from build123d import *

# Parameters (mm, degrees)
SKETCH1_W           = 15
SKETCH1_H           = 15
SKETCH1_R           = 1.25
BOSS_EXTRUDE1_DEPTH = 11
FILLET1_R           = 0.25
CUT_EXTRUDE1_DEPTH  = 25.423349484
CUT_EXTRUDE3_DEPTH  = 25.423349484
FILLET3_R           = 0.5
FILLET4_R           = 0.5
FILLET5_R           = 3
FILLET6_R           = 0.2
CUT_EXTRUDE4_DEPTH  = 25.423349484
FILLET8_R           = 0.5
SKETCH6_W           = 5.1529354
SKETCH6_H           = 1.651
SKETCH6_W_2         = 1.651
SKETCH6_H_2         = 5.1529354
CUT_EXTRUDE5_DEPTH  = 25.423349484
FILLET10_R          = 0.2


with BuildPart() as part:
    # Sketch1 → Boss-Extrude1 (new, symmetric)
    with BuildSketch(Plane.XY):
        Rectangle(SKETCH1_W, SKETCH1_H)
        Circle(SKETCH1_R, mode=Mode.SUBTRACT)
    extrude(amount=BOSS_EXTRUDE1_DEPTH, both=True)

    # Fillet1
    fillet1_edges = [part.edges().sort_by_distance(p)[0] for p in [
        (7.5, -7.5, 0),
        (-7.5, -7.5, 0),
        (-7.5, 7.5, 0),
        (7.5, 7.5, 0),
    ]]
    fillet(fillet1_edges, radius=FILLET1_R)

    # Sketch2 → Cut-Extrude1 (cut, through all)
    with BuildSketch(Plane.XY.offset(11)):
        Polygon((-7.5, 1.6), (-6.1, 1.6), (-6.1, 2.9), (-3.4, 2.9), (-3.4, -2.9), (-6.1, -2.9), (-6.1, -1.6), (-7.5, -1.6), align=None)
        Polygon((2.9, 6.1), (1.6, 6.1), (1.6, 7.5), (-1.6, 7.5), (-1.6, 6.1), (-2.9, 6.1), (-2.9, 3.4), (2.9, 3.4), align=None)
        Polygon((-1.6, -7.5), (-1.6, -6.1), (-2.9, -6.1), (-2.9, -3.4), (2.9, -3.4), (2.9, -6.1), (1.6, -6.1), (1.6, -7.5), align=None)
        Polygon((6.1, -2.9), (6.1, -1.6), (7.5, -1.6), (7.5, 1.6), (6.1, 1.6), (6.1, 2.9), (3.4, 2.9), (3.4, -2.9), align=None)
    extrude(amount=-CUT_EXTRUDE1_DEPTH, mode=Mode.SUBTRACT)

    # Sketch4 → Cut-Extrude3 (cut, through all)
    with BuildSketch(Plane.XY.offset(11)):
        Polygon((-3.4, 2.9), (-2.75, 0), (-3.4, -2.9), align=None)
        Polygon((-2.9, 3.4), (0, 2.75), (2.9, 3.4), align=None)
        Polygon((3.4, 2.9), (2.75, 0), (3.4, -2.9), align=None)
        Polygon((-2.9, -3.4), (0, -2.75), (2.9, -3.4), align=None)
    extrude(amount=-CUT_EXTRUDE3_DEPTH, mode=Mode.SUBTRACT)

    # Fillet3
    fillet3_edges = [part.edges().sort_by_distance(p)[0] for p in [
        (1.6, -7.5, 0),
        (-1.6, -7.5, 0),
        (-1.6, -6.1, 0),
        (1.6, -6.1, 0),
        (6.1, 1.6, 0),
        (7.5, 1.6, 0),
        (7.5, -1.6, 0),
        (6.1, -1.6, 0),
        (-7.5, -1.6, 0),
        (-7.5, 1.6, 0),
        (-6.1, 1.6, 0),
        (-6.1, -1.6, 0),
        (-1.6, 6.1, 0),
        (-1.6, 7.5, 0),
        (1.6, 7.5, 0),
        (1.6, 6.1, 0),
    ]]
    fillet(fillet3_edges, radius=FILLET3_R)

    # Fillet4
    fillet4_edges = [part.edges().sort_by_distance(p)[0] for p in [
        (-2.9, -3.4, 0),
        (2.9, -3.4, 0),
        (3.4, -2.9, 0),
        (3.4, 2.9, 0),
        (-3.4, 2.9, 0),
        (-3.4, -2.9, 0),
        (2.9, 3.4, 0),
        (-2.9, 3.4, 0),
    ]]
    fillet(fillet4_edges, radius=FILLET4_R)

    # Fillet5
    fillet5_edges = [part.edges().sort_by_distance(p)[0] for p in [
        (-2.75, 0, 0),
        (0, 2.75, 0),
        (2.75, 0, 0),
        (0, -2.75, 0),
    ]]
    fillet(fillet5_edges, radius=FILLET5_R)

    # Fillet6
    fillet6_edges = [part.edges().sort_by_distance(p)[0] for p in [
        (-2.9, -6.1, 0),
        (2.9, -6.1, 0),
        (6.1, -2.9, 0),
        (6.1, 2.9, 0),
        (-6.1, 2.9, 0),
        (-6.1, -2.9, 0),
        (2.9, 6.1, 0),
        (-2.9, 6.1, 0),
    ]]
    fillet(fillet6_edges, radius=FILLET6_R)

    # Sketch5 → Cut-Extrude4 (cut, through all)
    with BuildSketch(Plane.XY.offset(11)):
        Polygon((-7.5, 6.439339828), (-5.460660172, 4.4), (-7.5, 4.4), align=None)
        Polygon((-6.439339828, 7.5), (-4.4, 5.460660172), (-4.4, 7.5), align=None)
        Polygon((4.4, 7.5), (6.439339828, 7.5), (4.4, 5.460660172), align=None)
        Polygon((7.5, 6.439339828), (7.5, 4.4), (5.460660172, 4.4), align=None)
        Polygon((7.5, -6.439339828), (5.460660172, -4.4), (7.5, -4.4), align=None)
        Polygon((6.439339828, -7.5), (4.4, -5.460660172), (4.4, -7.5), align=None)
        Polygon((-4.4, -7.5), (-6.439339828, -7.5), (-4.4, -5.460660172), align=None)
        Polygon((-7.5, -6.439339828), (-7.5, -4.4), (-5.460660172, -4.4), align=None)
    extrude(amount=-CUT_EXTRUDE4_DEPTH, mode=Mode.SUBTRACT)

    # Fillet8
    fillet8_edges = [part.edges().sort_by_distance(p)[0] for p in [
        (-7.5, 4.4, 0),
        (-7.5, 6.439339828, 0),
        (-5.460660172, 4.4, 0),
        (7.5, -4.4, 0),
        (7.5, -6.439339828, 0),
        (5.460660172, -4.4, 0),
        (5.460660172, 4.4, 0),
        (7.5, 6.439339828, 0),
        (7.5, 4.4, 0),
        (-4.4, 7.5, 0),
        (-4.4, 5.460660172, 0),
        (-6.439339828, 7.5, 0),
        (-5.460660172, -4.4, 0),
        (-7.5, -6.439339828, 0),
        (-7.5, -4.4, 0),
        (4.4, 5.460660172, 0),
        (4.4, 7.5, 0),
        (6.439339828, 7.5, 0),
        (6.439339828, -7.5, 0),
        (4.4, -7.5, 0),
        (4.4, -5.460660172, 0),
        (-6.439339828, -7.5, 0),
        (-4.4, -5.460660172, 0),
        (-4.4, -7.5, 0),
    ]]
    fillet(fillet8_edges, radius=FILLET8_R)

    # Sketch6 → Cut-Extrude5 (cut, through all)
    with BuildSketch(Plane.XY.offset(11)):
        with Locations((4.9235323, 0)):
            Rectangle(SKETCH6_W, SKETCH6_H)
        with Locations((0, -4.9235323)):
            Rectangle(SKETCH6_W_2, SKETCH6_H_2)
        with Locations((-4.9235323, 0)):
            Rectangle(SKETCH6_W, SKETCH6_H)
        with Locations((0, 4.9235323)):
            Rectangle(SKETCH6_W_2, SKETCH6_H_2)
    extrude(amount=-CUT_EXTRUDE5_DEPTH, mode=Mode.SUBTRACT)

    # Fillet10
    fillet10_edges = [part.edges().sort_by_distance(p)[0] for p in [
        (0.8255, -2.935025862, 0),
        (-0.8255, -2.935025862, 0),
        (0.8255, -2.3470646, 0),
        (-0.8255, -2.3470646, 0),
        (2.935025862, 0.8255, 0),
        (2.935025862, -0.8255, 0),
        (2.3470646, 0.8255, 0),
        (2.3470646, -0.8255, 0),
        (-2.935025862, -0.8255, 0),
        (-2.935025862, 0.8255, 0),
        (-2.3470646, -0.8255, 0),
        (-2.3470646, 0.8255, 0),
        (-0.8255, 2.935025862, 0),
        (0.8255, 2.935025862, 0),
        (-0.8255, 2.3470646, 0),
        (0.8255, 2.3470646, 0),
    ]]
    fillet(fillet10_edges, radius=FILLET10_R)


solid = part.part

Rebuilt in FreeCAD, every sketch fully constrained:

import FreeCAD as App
import Part
import Sketcher
Q = App.Units.Quantity


def edges_at(feature, points):
    """Names of the edges that pass closest to the given points."""
    edges = feature.Shape.Edges
    near = lambda p: min(range(len(edges)), key=lambda i: edges[i].distToShape(Part.Vertex(*p))[0])
    return sorted({f"Edge{near(p) + 1}" for p in points})


def add_polygon(sketch, points):
    """Adds a closed chain of lines whose ends are joined by coincident constraints."""
    first, n = sketch.GeometryCount, len(points)
    for a, b in zip(points, points[1:] + points[:1]):
        sketch.addGeometry(Part.LineSegment(App.Vector(*a, 0), App.Vector(*b, 0)), False)
    for i in range(n):
        sketch.addConstraint(Sketcher.Constraint("Coincident", first + i, 2, first + (i + 1) % n, 1))

doc = App.newDocument("Part")
params = doc.addObject("Spreadsheet::Sheet", "Params")
for row, (alias, value) in enumerate([
    ("sketch1_diameter", "2.5 mm"),
    ("sketch1_width", "15 mm"),
    ("pad1_length", "22 mm"),
    ("fillet_radius", "0.25 mm"),
    ("sketch2_width", "1.4 mm"),
    ("sketch2_width2", "2.7 mm"),
    ("sketch2_width3", "1.3 mm"),
    ("sketch2_width4", "3.2 mm"),
    ("sketch3_width", "5.8 mm"),
    ("fillet2_radius", "0.5 mm"),
    ("fillet3_radius", "0.5 mm"),
    ("fillet4_radius", "3 mm"),
    ("fillet5_radius", "0.2 mm"),
    ("fillet6_radius", "0.5 mm"),
    ("fillet7_radius", "0.2 mm"),
], start=1):
    params.set(f"A{row}", alias)
    params.set(f"B{row}", "=" + value)
    params.setAlias(f"B{row}", alias)

body = doc.addObject("PartDesign::Body", "Body")

sketch1 = doc.addObject("Sketcher::SketchObject", "Sketch")
body.addObject(sketch1)
sketch1.AttachmentSupport = (doc.XY_Plane, [""])
sketch1.MapMode = "FlatFace"
add_polygon(sketch1, [(-7.5, 7.5), (-7.5, -7.5), (7.5, -7.5), (7.5, 7.5)])
sketch1.addGeometry(Part.Circle(App.Vector(0, 0, 0), App.Vector(0, 0, 1), 1.2), False)
sketch1.addConstraint(Sketcher.Constraint("Vertical", 0))
sketch1.addConstraint(Sketcher.Constraint("Horizontal", 1))
sketch1.addConstraint(Sketcher.Constraint("Vertical", 2))
sketch1.addConstraint(Sketcher.Constraint("Horizontal", 3))
sketch1.addConstraint(Sketcher.Constraint("Coincident", 4, 3, -1, 1))
sketch1.addConstraint(Sketcher.Constraint("Symmetric", 0, 2, 2, 2, -1, 1))
sketch1.addConstraint(Sketcher.Constraint("Equal", 3, 0))
sketch1.addConstraint(Sketcher.Constraint("Diameter", 4, Q("2.5 mm")))
sketch1.addConstraint(Sketcher.Constraint("DistanceX", 1, 1, 1, 2, Q("15 mm")))
sketch1.setExpression("Constraints[11]", "Params.sketch1_diameter")
sketch1.setExpression("Constraints[12]", "Params.sketch1_width")
pad1 = doc.addObject("PartDesign::Pad", "Pad")
body.addObject(pad1)
pad1.Profile = sketch1
pad1.setExpression("Length", "Params.pad1_length")
pad1.Midplane = True
doc.recompute()

fillet = doc.addObject("PartDesign::Fillet", "Fillet")
body.addObject(fillet)
fillet.Base = (pad1, edges_at(pad1, [
    (7.5, -7.5, 0),
    (-7.5, -7.5, 0),
    (-7.5, 7.5, 0),
    (7.5, 7.5, 0),
]))
fillet.setExpression("Radius", "Params.fillet_radius")

sketch2 = doc.addObject("Sketcher::SketchObject", "Sketch001")
body.addObject(sketch2)
sketch2.AttachmentSupport = (doc.XY_Plane, [""])
sketch2.MapMode = "FlatFace"
sketch2.AttachmentOffset = App.Placement(App.Vector(0, 0, 11), App.Rotation())
add_polygon(sketch2, [(-6.1, 1.6), (-7.5, 1.6), (-7.5, -1.6), (-6.1, -1.6), (-6.1, -2.9), (-3.4, -2.9), (-3.4, 2.9), (-6.1, 2.9)])
add_polygon(sketch2, [(2.9, 6.1), (1.6, 6.1), (1.6, 7.5), (-1.6, 7.5), (-1.6, 6.1), (-2.9, 6.1), (-2.9, 3.4), (2.9, 3.4)])
add_polygon(sketch2, [(-1.6, -6.1), (-1.6, -7.5), (1.6, -7.5), (1.6, -6.1), (2.9, -6.1), (2.9, -3.4), (-2.9, -3.4), (-2.9, -6.1)])
add_polygon(sketch2, [(6.1, -2.9), (6.1, -1.6), (7.5, -1.6), (7.5, 1.6), (6.1, 1.6), (6.1, 2.9), (3.4, 2.9), (3.4, -2.9)])
sketch2.addConstraint(Sketcher.Constraint("Horizontal", 0))
sketch2.addConstraint(Sketcher.Constraint("Vertical", 1))
sketch2.addConstraint(Sketcher.Constraint("Horizontal", 2))
sketch2.addConstraint(Sketcher.Constraint("Vertical", 3))
sketch2.addConstraint(Sketcher.Constraint("Horizontal", 4))
sketch2.addConstraint(Sketcher.Constraint("Vertical", 5))
sketch2.addConstraint(Sketcher.Constraint("Horizontal", 6))
sketch2.addConstraint(Sketcher.Constraint("Vertical", 7))
sketch2.addConstraint(Sketcher.Constraint("Horizontal", 8))
sketch2.addConstraint(Sketcher.Constraint("Vertical", 9))
sketch2.addConstraint(Sketcher.Constraint("Horizontal", 10))
sketch2.addConstraint(Sketcher.Constraint("Vertical", 11))
sketch2.addConstraint(Sketcher.Constraint("Horizontal", 12))
sketch2.addConstraint(Sketcher.Constraint("Vertical", 13))
sketch2.addConstraint(Sketcher.Constraint("Horizontal", 14))
sketch2.addConstraint(Sketcher.Constraint("Vertical", 15))
sketch2.addConstraint(Sketcher.Constraint("Vertical", 16))
sketch2.addConstraint(Sketcher.Constraint("Horizontal", 17))
sketch2.addConstraint(Sketcher.Constraint("Vertical", 18))
sketch2.addConstraint(Sketcher.Constraint("Horizontal", 19))
sketch2.addConstraint(Sketcher.Constraint("Vertical", 20))
sketch2.addConstraint(Sketcher.Constraint("Horizontal", 21))
sketch2.addConstraint(Sketcher.Constraint("Vertical", 22))
sketch2.addConstraint(Sketcher.Constraint("Horizontal", 23))
sketch2.addConstraint(Sketcher.Constraint("Vertical", 24))
sketch2.addConstraint(Sketcher.Constraint("Horizontal", 25))
sketch2.addConstraint(Sketcher.Constraint("Vertical", 26))
sketch2.addConstraint(Sketcher.Constraint("Horizontal", 27))
sketch2.addConstraint(Sketcher.Constraint("Vertical", 28))
sketch2.addConstraint(Sketcher.Constraint("Horizontal", 29))
sketch2.addConstraint(Sketcher.Constraint("Vertical", 30))
sketch2.addConstraint(Sketcher.Constraint("Horizontal", 31))
sketch2.addConstraint(Sketcher.Constraint("Symmetric", 9, 2, 16, 2, -1, 1))
sketch2.addConstraint(Sketcher.Constraint("Symmetric", 11, 2, 18, 2, -1, 1))
sketch2.addConstraint(Sketcher.Constraint("Symmetric", 13, 2, 20, 2, -1, 1))
sketch2.addConstraint(Sketcher.Constraint("Symmetric", 15, 2, 22, 2, -1, 1))
sketch2.addConstraint(Sketcher.Constraint("Symmetric", 7, 2, 24, 2, -1, 1))
sketch2.addConstraint(Sketcher.Constraint("Symmetric", 1, 2, 26, 2, -1, 1))
sketch2.addConstraint(Sketcher.Constraint("Symmetric", 3, 2, 28, 2, -1, 1))
sketch2.addConstraint(Sketcher.Constraint("Symmetric", 5, 2, 30, 2, -1, 1))
sketch2.addConstraint(Sketcher.Constraint("Symmetric", 8, 2, 11, 2, -2))
sketch2.addConstraint(Sketcher.Constraint("Symmetric", 2, 2, 24, 2, -2))
sketch2.addConstraint(Sketcher.Constraint("Horizontal", 6, 2, 28, 2))
sketch2.addConstraint(Sketcher.Constraint("Vertical", 15, 2, 19, 2))
sketch2.addConstraint(Sketcher.Constraint("Equal", 17, 1))
sketch2.addConstraint(Sketcher.Constraint("Equal", 23, 3))
sketch2.addConstraint(Sketcher.Constraint("Equal", 27, 9))
sketch2.addConstraint(Sketcher.Constraint("Equal", 31, 13))
sketch2.addConstraint(Sketcher.Constraint("DistanceX", 0, 2, 0, 1, Q("1.4 mm")))
sketch2.addConstraint(Sketcher.Constraint("DistanceX", 4, 1, 4, 2, Q("2.7 mm")))
sketch2.addConstraint(Sketcher.Constraint("DistanceX", 8, 2, 8, 1, Q("1.3 mm")))
sketch2.addConstraint(Sketcher.Constraint("DistanceX", 10, 2, 10, 1, Q("3.2 mm")))
sketch2.addConstraint(Sketcher.Constraint("DistanceX", 5, 2, 8, 2, Q("5 mm")))
sketch2.addConstraint(Sketcher.Constraint("DistanceY", 4, 2, 8, 2, Q("9 mm")))
sketch2.setExpression("Constraints[80]", "Params.sketch2_width")
sketch2.setExpression("Constraints[81]", "Params.sketch2_width2")
sketch2.setExpression("Constraints[82]", "Params.sketch2_width3")
sketch2.setExpression("Constraints[83]", "Params.sketch2_width4")
pocket1 = doc.addObject("PartDesign::Pocket", "Pocket")
body.addObject(pocket1)
pocket1.Profile = sketch2
pocket1.Type = "ThroughAll"

sketch3 = doc.addObject("Sketcher::SketchObject", "Sketch002")
body.addObject(sketch3)
sketch3.AttachmentSupport = (doc.XY_Plane, [""])
sketch3.MapMode = "FlatFace"
sketch3.AttachmentOffset = App.Placement(App.Vector(0, 0, 11), App.Rotation())
add_polygon(sketch3, [(-2.8, 0), (-3.4, 2.9), (-3.4, -2.9)])
add_polygon(sketch3, [(-2.9, 3.4), (0, 2.8), (2.9, 3.4)])
add_polygon(sketch3, [(3.4, 2.9), (2.8, 0), (3.4, -2.9)])
add_polygon(sketch3, [(0, -2.8), (-2.9, -3.4), (2.9, -3.4)])
sketch3.addConstraint(Sketcher.Constraint("Vertical", 1))
sketch3.addConstraint(Sketcher.Constraint("Horizontal", 5))
sketch3.addConstraint(Sketcher.Constraint("Vertical", 8))
sketch3.addConstraint(Sketcher.Constraint("Horizontal", 10))
sketch3.addConstraint(Sketcher.Constraint("Symmetric", 2, 2, 6, 2, -1, 1))
sketch3.addConstraint(Sketcher.Constraint("Symmetric", 0, 2, 7, 2, -1, 1))
sketch3.addConstraint(Sketcher.Constraint("Symmetric", 4, 2, 9, 2, -1, 1))
sketch3.addConstraint(Sketcher.Constraint("Symmetric", 3, 2, 11, 2, -1, 1))
sketch3.addConstraint(Sketcher.Constraint("PointOnObject", 2, 2, -1))
sketch3.addConstraint(Sketcher.Constraint("PointOnObject", 3, 2, -2))
sketch3.addConstraint(Sketcher.Constraint("Perpendicular", 2, 3))
sketch3.addConstraint(Sketcher.Constraint("Perpendicular", 0, 4))
sketch3.addConstraint(Sketcher.Constraint("Perpendicular", 3, 6))
sketch3.addConstraint(Sketcher.Constraint("Perpendicular", 6, 11))
sketch3.addConstraint(Sketcher.Constraint("Horizontal", 1, 2, 7, 2))
sketch3.addConstraint(Sketcher.Constraint("Equal", 10, 1))
sketch3.addConstraint(Sketcher.Constraint("DistanceX", 5, 2, 5, 1, Q("5.8 mm")))
sketch3.addConstraint(Sketcher.Constraint("DistanceX", 0, 2, -1, 1, Q("3.4 mm")))
sketch3.addConstraint(Sketcher.Constraint("DistanceY", -1, 1, 4, 2, Q("3.4 mm")))
sketch3.addConstraint(Sketcher.Constraint("DistanceX", 2, 2, 6, 2, Q("5.5 mm")))
sketch3.setExpression("Constraints[28]", "Params.sketch3_width")
pocket2 = doc.addObject("PartDesign::Pocket", "Pocket001")
body.addObject(pocket2)
pocket2.Profile = sketch3
pocket2.Type = "ThroughAll"
doc.recompute()

fillet2 = doc.addObject("PartDesign::Fillet", "Fillet001")
body.addObject(fillet2)
fillet2.Base = (pocket2, edges_at(pocket2, [
    (1.6, -7.5, 0),
    (-1.6, -7.5, 0),
    (-1.6, -6.1, 0),
    (1.6, -6.1, 0),
    (6.1, 1.6, 0),
    (7.5, 1.6, 0),
    (7.5, -1.6, 0),
    (6.1, -1.6, 0),
    (-7.5, -1.6, 0),
    (-7.5, 1.6, 0),
    (-6.1, 1.6, 0),
    (-6.1, -1.6, 0),
    (-1.6, 6.1, 0),
    (-1.6, 7.5, 0),
    (1.6, 7.5, 0),
    (1.6, 6.1, 0),
]))
fillet2.setExpression("Radius", "Params.fillet2_radius")
doc.recompute()

fillet3 = doc.addObject("PartDesign::Fillet", "Fillet002")
body.addObject(fillet3)
fillet3.Base = (fillet2, edges_at(fillet2, [
    (-2.9, -3.4, 0),
    (2.9, -3.4, 0),
    (3.4, -2.9, 0),
    (3.4, 2.9, 0),
    (-3.4, 2.9, 0),
    (-3.4, -2.9, 0),
    (2.9, 3.4, 0),
    (-2.9, 3.4, 0),
]))
fillet3.setExpression("Radius", "Params.fillet3_radius")
doc.recompute()

fillet4 = doc.addObject("PartDesign::Fillet", "Fillet003")
body.addObject(fillet4)
fillet4.Base = (fillet3, edges_at(fillet3, [
    (-2.75, 0, 0),
    (0, 2.75, 0),
    (2.75, 0, 0),
    (0, -2.75, 0),
]))
fillet4.setExpression("Radius", "Params.fillet4_radius")
doc.recompute()

fillet5 = doc.addObject("PartDesign::Fillet", "Fillet004")
body.addObject(fillet5)
fillet5.Base = (fillet4, edges_at(fillet4, [
    (-2.9, -6.1, 0),
    (2.9, -6.1, 0),
    (6.1, -2.9, 0),
    (6.1, 2.9, 0),
    (-6.1, 2.9, 0),
    (-6.1, -2.9, 0),
    (2.9, 6.1, 0),
    (-2.9, 6.1, 0),
]))
fillet5.setExpression("Radius", "Params.fillet5_radius")

sketch4 = doc.addObject("Sketcher::SketchObject", "Sketch003")
body.addObject(sketch4)
sketch4.AttachmentSupport = (doc.XY_Plane, [""])
sketch4.MapMode = "FlatFace"
sketch4.AttachmentOffset = App.Placement(App.Vector(0, 0, 11), App.Rotation())
add_polygon(sketch4, [(-5.5, 4.4), (-7.5, 6.4), (-7.5, 4.4)])
add_polygon(sketch4, [(-6.4, 7.5), (-4.4, 5.5), (-4.4, 7.5)])
add_polygon(sketch4, [(6.4, 7.5), (4.4, 7.5), (4.4, 5.5)])
add_polygon(sketch4, [(7.5, 4.4), (7.5, 6.4), (5.5, 4.4)])
add_polygon(sketch4, [(5.5, -4.4), (7.5, -6.4), (7.5, -4.4)])
add_polygon(sketch4, [(6.4, -7.5), (4.4, -5.5), (4.4, -7.5)])
add_polygon(sketch4, [(-6.4, -7.5), (-4.4, -7.5), (-4.4, -5.5)])
add_polygon(sketch4, [(-7.5, -4.4), (-7.5, -6.4), (-5.5, -4.4)])
sketch4.addConstraint(Sketcher.Constraint("Vertical", 1))
sketch4.addConstraint(Sketcher.Constraint("Horizontal", 2))
sketch4.addConstraint(Sketcher.Constraint("Vertical", 4))
sketch4.addConstraint(Sketcher.Constraint("Horizontal", 5))
sketch4.addConstraint(Sketcher.Constraint("Horizontal", 6))
sketch4.addConstraint(Sketcher.Constraint("Vertical", 7))
sketch4.addConstraint(Sketcher.Constraint("Vertical", 9))
sketch4.addConstraint(Sketcher.Constraint("Horizontal", 11))
sketch4.addConstraint(Sketcher.Constraint("Vertical", 13))
sketch4.addConstraint(Sketcher.Constraint("Horizontal", 14))
sketch4.addConstraint(Sketcher.Constraint("Vertical", 16))
sketch4.addConstraint(Sketcher.Constraint("Horizontal", 17))
sketch4.addConstraint(Sketcher.Constraint("Horizontal", 18))
sketch4.addConstraint(Sketcher.Constraint("Vertical", 19))
sketch4.addConstraint(Sketcher.Constraint("Vertical", 21))
sketch4.addConstraint(Sketcher.Constraint("Horizontal", 23))
sketch4.addConstraint(Sketcher.Constraint("Symmetric", 0, 2, 12, 2, -1, 1))
sketch4.addConstraint(Sketcher.Constraint("Symmetric", 2, 2, 14, 2, -1, 1))
sketch4.addConstraint(Sketcher.Constraint("Symmetric", 3, 2, 15, 2, -1, 1))
sketch4.addConstraint(Sketcher.Constraint("Symmetric", 5, 2, 17, 2, -1, 1))
sketch4.addConstraint(Sketcher.Constraint("Symmetric", 6, 2, 18, 2, -1, 1))
sketch4.addConstraint(Sketcher.Constraint("Symmetric", 9, 2, 21, 2, -1, 1))
sketch4.addConstraint(Sketcher.Constraint("Symmetric", 10, 2, 22, 2, -1, 1))
sketch4.addConstraint(Sketcher.Constraint("Symmetric", 4, 2, 6, 2, -2))
sketch4.addConstraint(Sketcher.Constraint("Symmetric", 0, 2, 9, 2, -2))
sketch4.addConstraint(Sketcher.Constraint("Symmetric", 2, 2, 10, 2, -2))
sketch4.addConstraint(Sketcher.Constraint("Parallel", 0, 3))
sketch4.addConstraint(Sketcher.Constraint("Perpendicular", 3, 8))
sketch4.addConstraint(Sketcher.Constraint("Parallel", 8, 10))
sketch4.addConstraint(Sketcher.Constraint("Perpendicular", 15, 20))
sketch4.addConstraint(Sketcher.Constraint("Horizontal", 3, 2, 7, 2))
sketch4.addConstraint(Sketcher.Constraint("Horizontal", 15, 2, 19, 2))
sketch4.addConstraint(Sketcher.Constraint("Equal", 2, 5))
sketch4.addConstraint(Sketcher.Constraint("DistanceX", 0, 2, -1, 1, Q("7.5 mm")))
sketch4.addConstraint(Sketcher.Constraint("DistanceY", -1, 1, 1, 2, Q("4.4 mm")))
sketch4.addConstraint(Sketcher.Constraint("DistanceX", 3, 2, -1, 1, Q("4.4 mm")))
sketch4.addConstraint(Sketcher.Constraint("DistanceY", -1, 1, 4, 2, Q("7.5 mm")))
sketch4.addConstraint(Sketcher.Constraint("DistanceX", 2, 1, 2, 2, Q("2.03934 mm")))
pocket3 = doc.addObject("PartDesign::Pocket", "Pocket002")
body.addObject(pocket3)
pocket3.Profile = sketch4
pocket3.Type = "ThroughAll"
doc.recompute()

fillet6 = doc.addObject("PartDesign::Fillet", "Fillet005")
body.addObject(fillet6)
fillet6.Base = (pocket3, edges_at(pocket3, [
    (-7.5, 4.4, 0),
    (-7.5, 6.439, 0),
    (-5.461, 4.4, 0),
    (7.5, -4.4, 0),
    (7.5, -6.439, 0),
    (5.461, -4.4, 0),
    (5.461, 4.4, 0),
    (7.5, 6.439, 0),
    (7.5, 4.4, 0),
    (-4.4, 7.5, 0),
    (-4.4, 5.461, 0),
    (-6.439, 7.5, 0),
    (-5.461, -4.4, 0),
    (-7.5, -6.439, 0),
    (-7.5, -4.4, 0),
    (4.4, 5.461, 0),
    (4.4, 7.5, 0),
    (6.439, 7.5, 0),
    (6.439, -7.5, 0),
    (4.4, -7.5, 0),
    (4.4, -5.461, 0),
    (-6.439, -7.5, 0),
    (-4.4, -5.461, 0),
    (-4.4, -7.5, 0),
]))
fillet6.setExpression("Radius", "Params.fillet6_radius")

sketch5 = doc.addObject("Sketcher::SketchObject", "Sketch004")
body.addObject(sketch5)
sketch5.AttachmentSupport = (doc.XY_Plane, [""])
sketch5.MapMode = "FlatFace"
sketch5.AttachmentOffset = App.Placement(App.Vector(0, 0, 11), App.Rotation())
add_polygon(sketch5, [(2.3, 0.8), (2.3, -0.8), (7.5, -0.8), (7.5, 0.8)])
add_polygon(sketch5, [(-0.8, -2.3), (-0.8, -7.5), (0.8, -7.5), (0.8, -2.3)])
add_polygon(sketch5, [(-7.5, 0.8), (-7.5, -0.8), (-2.3, -0.8), (-2.3, 0.8)])
add_polygon(sketch5, [(-0.8, 7.5), (-0.8, 2.3), (0.8, 2.3), (0.8, 7.5)])
sketch5.addConstraint(Sketcher.Constraint("Vertical", 0))
sketch5.addConstraint(Sketcher.Constraint("Horizontal", 1))
sketch5.addConstraint(Sketcher.Constraint("Vertical", 2))
sketch5.addConstraint(Sketcher.Constraint("Horizontal", 3))
sketch5.addConstraint(Sketcher.Constraint("Vertical", 4))
sketch5.addConstraint(Sketcher.Constraint("Horizontal", 5))
sketch5.addConstraint(Sketcher.Constraint("Vertical", 6))
sketch5.addConstraint(Sketcher.Constraint("Horizontal", 7))
sketch5.addConstraint(Sketcher.Constraint("Vertical", 8))
sketch5.addConstraint(Sketcher.Constraint("Horizontal", 9))
sketch5.addConstraint(Sketcher.Constraint("Vertical", 10))
sketch5.addConstraint(Sketcher.Constraint("Horizontal", 11))
sketch5.addConstraint(Sketcher.Constraint("Vertical", 12))
sketch5.addConstraint(Sketcher.Constraint("Horizontal", 13))
sketch5.addConstraint(Sketcher.Constraint("Vertical", 14))
sketch5.addConstraint(Sketcher.Constraint("Horizontal", 15))
sketch5.addConstraint(Sketcher.Constraint("Symmetric", 2, 2, 8, 2, -1, 1))
sketch5.addConstraint(Sketcher.Constraint("Symmetric", 0, 2, 10, 2, -1, 1))
sketch5.addConstraint(Sketcher.Constraint("Symmetric", 6, 2, 12, 2, -1, 1))
sketch5.addConstraint(Sketcher.Constraint("Symmetric", 4, 2, 14, 2, -1, 1))
sketch5.addConstraint(Sketcher.Constraint("Horizontal", 1, 2, 8, 2))
sketch5.addConstraint(Sketcher.Constraint("Vertical", 7, 2, 12, 2))
sketch5.addConstraint(Sketcher.Constraint("Equal", 15, 0))
sketch5.addConstraint(Sketcher.Constraint("Equal", 11, 4))
sketch5.addConstraint(Sketcher.Constraint("DistanceX", -1, 1, 1, 2, Q("7.5 mm")))
sketch5.addConstraint(Sketcher.Constraint("DistanceY", 4, 2, -1, 1, Q("7.5 mm")))
sketch5.addConstraint(Sketcher.Constraint("DistanceX", 5, 1, 5, 2, Q("1.651 mm")))
sketch5.addConstraint(Sketcher.Constraint("DistanceX", 1, 1, 1, 2, Q("5.152935 mm")))
pocket4 = doc.addObject("PartDesign::Pocket", "Pocket003")
body.addObject(pocket4)
pocket4.Profile = sketch5
pocket4.Type = "ThroughAll"
doc.recompute()

fillet7 = doc.addObject("PartDesign::Fillet", "Fillet006")
body.addObject(fillet7)
fillet7.Base = (pocket4, edges_at(pocket4, [
    (0.826, -2.935, 0),
    (-0.826, -2.935, 0),
    (0.826, -2.347, 0),
    (-0.826, -2.347, 0),
    (2.935, 0.826, 0),
    (2.935, -0.826, 0),
    (2.347, 0.826, 0),
    (2.347, -0.826, 0),
    (-2.935, -0.826, 0),
    (-2.935, 0.826, 0),
    (-2.347, -0.826, 0),
    (-2.347, 0.826, 0),
    (-0.826, 2.935, 0),
    (0.826, 2.935, 0),
    (-0.826, 2.347, 0),
    (0.826, 2.347, 0),
]))
fillet7.setExpression("Radius", "Params.fillet7_radius")

doc.recompute()
